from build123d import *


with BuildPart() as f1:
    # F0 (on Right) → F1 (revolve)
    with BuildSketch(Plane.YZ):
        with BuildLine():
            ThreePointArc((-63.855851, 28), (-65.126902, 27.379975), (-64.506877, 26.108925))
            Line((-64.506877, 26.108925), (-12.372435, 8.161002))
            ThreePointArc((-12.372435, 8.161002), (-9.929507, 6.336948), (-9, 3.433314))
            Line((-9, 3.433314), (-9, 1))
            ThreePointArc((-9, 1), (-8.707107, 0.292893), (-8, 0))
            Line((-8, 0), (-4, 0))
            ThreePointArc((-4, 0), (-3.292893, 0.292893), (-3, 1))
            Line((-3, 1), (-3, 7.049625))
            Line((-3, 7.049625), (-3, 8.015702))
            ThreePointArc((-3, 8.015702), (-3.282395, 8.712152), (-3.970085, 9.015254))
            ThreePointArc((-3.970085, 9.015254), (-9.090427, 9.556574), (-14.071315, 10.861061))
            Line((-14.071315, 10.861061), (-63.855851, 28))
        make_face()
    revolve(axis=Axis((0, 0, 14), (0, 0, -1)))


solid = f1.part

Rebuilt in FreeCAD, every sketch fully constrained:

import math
import FreeCAD as App
import Part
import Sketcher
from FreeCAD import Vector
Q = App.Units.Quantity

doc = App.newDocument("Part")
body = doc.addObject("PartDesign::Body", "Body")

sketch1 = doc.addObject("Sketcher::SketchObject", "Sketch")
body.addObject(sketch1)
sketch1.AttachmentSupport = (doc.YZ_Plane, [""])
sketch1.MapMode = "FlatFace"
sketch1.addGeometry([
    Part.ArcOfCircle(Part.Circle(Vector(-64.181364, 27.054463, 0), Vector(0, 0, 1), 1), math.radians(71.003323), math.radians(251.003359)),
    Part.LineSegment(Vector(-64.506877, 26.108925, 0), Vector(-12.372435, 8.161002, 0)),
    Part.ArcOfCircle(Part.Circle(Vector(-13.999999, 3.433315, 0), Vector(0, 0, 1), 4.999999), math.radians(-0.000012), math.radians(71.003352)),
    Part.LineSegment(Vector(-9, 3.433314, 0), Vector(-9, 1, 0)),
    Part.ArcOfCircle(Part.Circle(Vector(-8.000001, 0.999999, 0), Vector(0, 0, 1), 0.999999), math.radians(179.999957), math.radians(270.000043)),
    Part.LineSegment(Vector(-8, 0, 0), Vector(-4, 0, 0)),
    Part.ArcOfCircle(Part.Circle(Vector(-3.999999, 0.999999, 0), Vector(0, 0, 1), 0.999999), math.radians(-90.000043), math.radians(0.000043)),
    Part.LineSegment(Vector(-3, 1, 0), Vector(-3, 8.015702, 0)),
    Part.ArcOfCircle(Part.Circle(Vector(-4, 8.015702, 0), Vector(0, 0, 1), 1), math.radians(0.000014), math.radians(88.285752)),
    Part.ArcOfCircle(Part.Circle(Vector(-2.947817, 43.172177, 0), Vector(0, 0, 1), 34.172217), math.radians(-108.996652), math.radians(-91.714269)),
    Part.LineSegment(Vector(-14.071315, 10.861061, 0), Vector(-63.855851, 28, 0)),
], False)
sketch1.addConstraint([
    Sketcher.Constraint("Coincident", 0, 2, 1, 1),
    Sketcher.Constraint("Coincident", 1, 2, 2, 2),
    Sketcher.Constraint("Coincident", 2, 1, 3, 1),
    Sketcher.Constraint("Coincident", 3, 2, 4, 1),
    Sketcher.Constraint("Coincident", 4, 2, 5, 1),
    Sketcher.Constraint("Coincident", 5, 2, 6, 1),
    Sketcher.Constraint("Coincident", 6, 2, 7, 1),
    Sketcher.Constraint("Coincident", 7, 2, 8, 1),
    Sketcher.Constraint("Coincident", 8, 2, 9, 2),
    Sketcher.Constraint("Coincident", 9, 1, 10, 1),
    Sketcher.Constraint("Coincident", 10, 2, 0, 1),
    Sketcher.Constraint("Vertical", 3),
    Sketcher.Constraint("Horizontal", 5),
    Sketcher.Constraint("Vertical", 7),
    Sketcher.Constraint("PointOnObject", 4, 2, -1),
    Sketcher.Constraint("Radius", 0, Q("1 mm")),
    Sketcher.Constraint("Radius", 2, Q("4.999999 mm")),
    Sketcher.Constraint("Radius", 4, Q("0.999999 mm")),
    Sketcher.Constraint("Radius", 6, Q("0.999999 mm")),
    Sketcher.Constraint("Radius", 8, Q("1 mm")),
    Sketcher.Constraint("DistanceX", 5, 1, 5, 2, Q("4 mm")),
    Sketcher.Constraint("DistanceX", 2, 3, -1, 1, Q("13.999999 mm")),
    Sketcher.Constraint("DistanceX", 6, 3, -1, 1, Q("3.999999 mm")),
    Sketcher.Constraint("DistanceY", -1, 1, 3, 2, Q("1 mm")),
    Sketcher.Constraint("DistanceX", 4, 2, -1, 1, Q("8 mm")),
    Sketcher.Constraint("DistanceY", -1, 1, 6, 2, Q("1 mm")),
    Sketcher.Constraint("DistanceY", -1, 1, 10, 2, Q("28 mm")),
    Sketcher.Constraint("DistanceY", 7, 1, 7, 2, Q("7.015702 mm")),
    Sketcher.Constraint("Radius", 9, Q("34.172217 mm")),
    Sketcher.Constraint("DistanceY", 1, 2, 10, 2, Q("19.838998 mm")),
    Sketcher.Constraint("DistanceY", -1, 1, 8, 3, Q("8.015702 mm")),
    Sketcher.Constraint("DistanceY", 3, 2, 3, 1, Q("2.433314 mm")),
    Sketcher.Constraint("DistanceY", -1, 1, 9, 1, Q("10.861061 mm")),
    Sketcher.Constraint("DistanceX", 10, 2, -1, 1, Q("63.855851 mm")),
    Sketcher.Constraint("DistanceY", 8, 3, 0, 3, Q("19.038761 mm")),
    Sketcher.Constraint("DistanceX", 2, 3, 9, 3, Q("11.052182 mm")),
    Sketcher.Constraint("DistanceX", 0, 2, 2, 3, Q("50.506878 mm")),
    Sketcher.Constraint("DistanceY", 2, 3, 0, 2, Q("22.67561 mm")),
    Sketcher.Constraint("DistanceY", 2, 1, 8, 2, Q("5.58194 mm")),
])
revolution = doc.addObject("PartDesign::Revolution", "Revolution")
body.addObject(revolution)
revolution.Profile = sketch1
revolution.ReferenceAxis = (sketch1, ["V_Axis"])
revolution.Angle = 360

doc.recompute()
